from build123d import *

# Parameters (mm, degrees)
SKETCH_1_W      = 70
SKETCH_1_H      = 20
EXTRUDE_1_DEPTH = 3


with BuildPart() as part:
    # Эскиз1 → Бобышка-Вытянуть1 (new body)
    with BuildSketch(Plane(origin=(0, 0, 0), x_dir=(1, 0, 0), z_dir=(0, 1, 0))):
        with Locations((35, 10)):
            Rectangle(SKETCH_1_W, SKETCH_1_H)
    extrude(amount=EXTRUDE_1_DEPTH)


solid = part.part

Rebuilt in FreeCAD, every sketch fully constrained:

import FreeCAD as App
import Part
import Sketcher

V = App.Vector


def add_polygon(sketch, points):
    """Adds a closed chain of lines whose ends are joined by coincident constraints."""
    first, n = sketch.GeometryCount, len(points)
    for a, b in zip(points, points[1:] + points[:1]):
        sketch.addGeometry(Part.LineSegment(App.Vector(*a, 0), App.Vector(*b, 0)), False)
    for i in range(n):
        sketch.addConstraint(Sketcher.Constraint("Coincident", first + i, 2, first + (i + 1) % n, 1))

doc = App.newDocument("Part")
params = doc.addObject("Spreadsheet::Sheet", "Params")
for row, (alias, value) in enumerate([
    ("sketch1_width", "70 mm"),
    ("sketch1_height", "20 mm"),
    ("pad1_length", "3 mm"),
], start=1):
    params.set(f"A{row}", alias)
    params.set(f"B{row}", "=" + value)
    params.setAlias(f"B{row}", alias)

body = doc.addObject("PartDesign::Body", "Body")

# Sketch on XZ plane
sketch1 = body.newObject("Sketcher::SketchObject", "Sketch")
sketch1.AttachmentSupport = (doc.getObject("XZ_Plane"), [""])
sketch1.MapMode = "FlatFace"
add_polygon(sketch1, [(0, -20), (0, 0), (70, 0), (70, -20)])  # lines 0-3
sketch1.addConstraint(Sketcher.Constraint("Vertical", 0))
sketch1.addConstraint(Sketcher.Constraint("Horizontal", 1))
sketch1.addConstraint(Sketcher.Constraint("Vertical", 2))
sketch1.addConstraint(Sketcher.Constraint("Horizontal", 3))
sketch1.addConstraint(Sketcher.Constraint("Coincident", 0, 2, -1, 1))
sketch1.addConstraint(Sketcher.Constraint("DistanceX", 1, 1, 1, 2, 70.0))
sketch1.addConstraint(Sketcher.Constraint("DistanceY", 0, 1, 0, 2, 20.0))
sketch1.setExpression("Constraints[9]", "Params.sketch1_width")
sketch1.setExpression("Constraints[10]", "Params.sketch1_height")
pad1 = body.newObject("PartDesign::Pad", "Pad")
pad1.Profile = sketch1
pad1.setExpression("Length", "Params.pad1_length")
pad1.Reversed = True

doc.recompute()
